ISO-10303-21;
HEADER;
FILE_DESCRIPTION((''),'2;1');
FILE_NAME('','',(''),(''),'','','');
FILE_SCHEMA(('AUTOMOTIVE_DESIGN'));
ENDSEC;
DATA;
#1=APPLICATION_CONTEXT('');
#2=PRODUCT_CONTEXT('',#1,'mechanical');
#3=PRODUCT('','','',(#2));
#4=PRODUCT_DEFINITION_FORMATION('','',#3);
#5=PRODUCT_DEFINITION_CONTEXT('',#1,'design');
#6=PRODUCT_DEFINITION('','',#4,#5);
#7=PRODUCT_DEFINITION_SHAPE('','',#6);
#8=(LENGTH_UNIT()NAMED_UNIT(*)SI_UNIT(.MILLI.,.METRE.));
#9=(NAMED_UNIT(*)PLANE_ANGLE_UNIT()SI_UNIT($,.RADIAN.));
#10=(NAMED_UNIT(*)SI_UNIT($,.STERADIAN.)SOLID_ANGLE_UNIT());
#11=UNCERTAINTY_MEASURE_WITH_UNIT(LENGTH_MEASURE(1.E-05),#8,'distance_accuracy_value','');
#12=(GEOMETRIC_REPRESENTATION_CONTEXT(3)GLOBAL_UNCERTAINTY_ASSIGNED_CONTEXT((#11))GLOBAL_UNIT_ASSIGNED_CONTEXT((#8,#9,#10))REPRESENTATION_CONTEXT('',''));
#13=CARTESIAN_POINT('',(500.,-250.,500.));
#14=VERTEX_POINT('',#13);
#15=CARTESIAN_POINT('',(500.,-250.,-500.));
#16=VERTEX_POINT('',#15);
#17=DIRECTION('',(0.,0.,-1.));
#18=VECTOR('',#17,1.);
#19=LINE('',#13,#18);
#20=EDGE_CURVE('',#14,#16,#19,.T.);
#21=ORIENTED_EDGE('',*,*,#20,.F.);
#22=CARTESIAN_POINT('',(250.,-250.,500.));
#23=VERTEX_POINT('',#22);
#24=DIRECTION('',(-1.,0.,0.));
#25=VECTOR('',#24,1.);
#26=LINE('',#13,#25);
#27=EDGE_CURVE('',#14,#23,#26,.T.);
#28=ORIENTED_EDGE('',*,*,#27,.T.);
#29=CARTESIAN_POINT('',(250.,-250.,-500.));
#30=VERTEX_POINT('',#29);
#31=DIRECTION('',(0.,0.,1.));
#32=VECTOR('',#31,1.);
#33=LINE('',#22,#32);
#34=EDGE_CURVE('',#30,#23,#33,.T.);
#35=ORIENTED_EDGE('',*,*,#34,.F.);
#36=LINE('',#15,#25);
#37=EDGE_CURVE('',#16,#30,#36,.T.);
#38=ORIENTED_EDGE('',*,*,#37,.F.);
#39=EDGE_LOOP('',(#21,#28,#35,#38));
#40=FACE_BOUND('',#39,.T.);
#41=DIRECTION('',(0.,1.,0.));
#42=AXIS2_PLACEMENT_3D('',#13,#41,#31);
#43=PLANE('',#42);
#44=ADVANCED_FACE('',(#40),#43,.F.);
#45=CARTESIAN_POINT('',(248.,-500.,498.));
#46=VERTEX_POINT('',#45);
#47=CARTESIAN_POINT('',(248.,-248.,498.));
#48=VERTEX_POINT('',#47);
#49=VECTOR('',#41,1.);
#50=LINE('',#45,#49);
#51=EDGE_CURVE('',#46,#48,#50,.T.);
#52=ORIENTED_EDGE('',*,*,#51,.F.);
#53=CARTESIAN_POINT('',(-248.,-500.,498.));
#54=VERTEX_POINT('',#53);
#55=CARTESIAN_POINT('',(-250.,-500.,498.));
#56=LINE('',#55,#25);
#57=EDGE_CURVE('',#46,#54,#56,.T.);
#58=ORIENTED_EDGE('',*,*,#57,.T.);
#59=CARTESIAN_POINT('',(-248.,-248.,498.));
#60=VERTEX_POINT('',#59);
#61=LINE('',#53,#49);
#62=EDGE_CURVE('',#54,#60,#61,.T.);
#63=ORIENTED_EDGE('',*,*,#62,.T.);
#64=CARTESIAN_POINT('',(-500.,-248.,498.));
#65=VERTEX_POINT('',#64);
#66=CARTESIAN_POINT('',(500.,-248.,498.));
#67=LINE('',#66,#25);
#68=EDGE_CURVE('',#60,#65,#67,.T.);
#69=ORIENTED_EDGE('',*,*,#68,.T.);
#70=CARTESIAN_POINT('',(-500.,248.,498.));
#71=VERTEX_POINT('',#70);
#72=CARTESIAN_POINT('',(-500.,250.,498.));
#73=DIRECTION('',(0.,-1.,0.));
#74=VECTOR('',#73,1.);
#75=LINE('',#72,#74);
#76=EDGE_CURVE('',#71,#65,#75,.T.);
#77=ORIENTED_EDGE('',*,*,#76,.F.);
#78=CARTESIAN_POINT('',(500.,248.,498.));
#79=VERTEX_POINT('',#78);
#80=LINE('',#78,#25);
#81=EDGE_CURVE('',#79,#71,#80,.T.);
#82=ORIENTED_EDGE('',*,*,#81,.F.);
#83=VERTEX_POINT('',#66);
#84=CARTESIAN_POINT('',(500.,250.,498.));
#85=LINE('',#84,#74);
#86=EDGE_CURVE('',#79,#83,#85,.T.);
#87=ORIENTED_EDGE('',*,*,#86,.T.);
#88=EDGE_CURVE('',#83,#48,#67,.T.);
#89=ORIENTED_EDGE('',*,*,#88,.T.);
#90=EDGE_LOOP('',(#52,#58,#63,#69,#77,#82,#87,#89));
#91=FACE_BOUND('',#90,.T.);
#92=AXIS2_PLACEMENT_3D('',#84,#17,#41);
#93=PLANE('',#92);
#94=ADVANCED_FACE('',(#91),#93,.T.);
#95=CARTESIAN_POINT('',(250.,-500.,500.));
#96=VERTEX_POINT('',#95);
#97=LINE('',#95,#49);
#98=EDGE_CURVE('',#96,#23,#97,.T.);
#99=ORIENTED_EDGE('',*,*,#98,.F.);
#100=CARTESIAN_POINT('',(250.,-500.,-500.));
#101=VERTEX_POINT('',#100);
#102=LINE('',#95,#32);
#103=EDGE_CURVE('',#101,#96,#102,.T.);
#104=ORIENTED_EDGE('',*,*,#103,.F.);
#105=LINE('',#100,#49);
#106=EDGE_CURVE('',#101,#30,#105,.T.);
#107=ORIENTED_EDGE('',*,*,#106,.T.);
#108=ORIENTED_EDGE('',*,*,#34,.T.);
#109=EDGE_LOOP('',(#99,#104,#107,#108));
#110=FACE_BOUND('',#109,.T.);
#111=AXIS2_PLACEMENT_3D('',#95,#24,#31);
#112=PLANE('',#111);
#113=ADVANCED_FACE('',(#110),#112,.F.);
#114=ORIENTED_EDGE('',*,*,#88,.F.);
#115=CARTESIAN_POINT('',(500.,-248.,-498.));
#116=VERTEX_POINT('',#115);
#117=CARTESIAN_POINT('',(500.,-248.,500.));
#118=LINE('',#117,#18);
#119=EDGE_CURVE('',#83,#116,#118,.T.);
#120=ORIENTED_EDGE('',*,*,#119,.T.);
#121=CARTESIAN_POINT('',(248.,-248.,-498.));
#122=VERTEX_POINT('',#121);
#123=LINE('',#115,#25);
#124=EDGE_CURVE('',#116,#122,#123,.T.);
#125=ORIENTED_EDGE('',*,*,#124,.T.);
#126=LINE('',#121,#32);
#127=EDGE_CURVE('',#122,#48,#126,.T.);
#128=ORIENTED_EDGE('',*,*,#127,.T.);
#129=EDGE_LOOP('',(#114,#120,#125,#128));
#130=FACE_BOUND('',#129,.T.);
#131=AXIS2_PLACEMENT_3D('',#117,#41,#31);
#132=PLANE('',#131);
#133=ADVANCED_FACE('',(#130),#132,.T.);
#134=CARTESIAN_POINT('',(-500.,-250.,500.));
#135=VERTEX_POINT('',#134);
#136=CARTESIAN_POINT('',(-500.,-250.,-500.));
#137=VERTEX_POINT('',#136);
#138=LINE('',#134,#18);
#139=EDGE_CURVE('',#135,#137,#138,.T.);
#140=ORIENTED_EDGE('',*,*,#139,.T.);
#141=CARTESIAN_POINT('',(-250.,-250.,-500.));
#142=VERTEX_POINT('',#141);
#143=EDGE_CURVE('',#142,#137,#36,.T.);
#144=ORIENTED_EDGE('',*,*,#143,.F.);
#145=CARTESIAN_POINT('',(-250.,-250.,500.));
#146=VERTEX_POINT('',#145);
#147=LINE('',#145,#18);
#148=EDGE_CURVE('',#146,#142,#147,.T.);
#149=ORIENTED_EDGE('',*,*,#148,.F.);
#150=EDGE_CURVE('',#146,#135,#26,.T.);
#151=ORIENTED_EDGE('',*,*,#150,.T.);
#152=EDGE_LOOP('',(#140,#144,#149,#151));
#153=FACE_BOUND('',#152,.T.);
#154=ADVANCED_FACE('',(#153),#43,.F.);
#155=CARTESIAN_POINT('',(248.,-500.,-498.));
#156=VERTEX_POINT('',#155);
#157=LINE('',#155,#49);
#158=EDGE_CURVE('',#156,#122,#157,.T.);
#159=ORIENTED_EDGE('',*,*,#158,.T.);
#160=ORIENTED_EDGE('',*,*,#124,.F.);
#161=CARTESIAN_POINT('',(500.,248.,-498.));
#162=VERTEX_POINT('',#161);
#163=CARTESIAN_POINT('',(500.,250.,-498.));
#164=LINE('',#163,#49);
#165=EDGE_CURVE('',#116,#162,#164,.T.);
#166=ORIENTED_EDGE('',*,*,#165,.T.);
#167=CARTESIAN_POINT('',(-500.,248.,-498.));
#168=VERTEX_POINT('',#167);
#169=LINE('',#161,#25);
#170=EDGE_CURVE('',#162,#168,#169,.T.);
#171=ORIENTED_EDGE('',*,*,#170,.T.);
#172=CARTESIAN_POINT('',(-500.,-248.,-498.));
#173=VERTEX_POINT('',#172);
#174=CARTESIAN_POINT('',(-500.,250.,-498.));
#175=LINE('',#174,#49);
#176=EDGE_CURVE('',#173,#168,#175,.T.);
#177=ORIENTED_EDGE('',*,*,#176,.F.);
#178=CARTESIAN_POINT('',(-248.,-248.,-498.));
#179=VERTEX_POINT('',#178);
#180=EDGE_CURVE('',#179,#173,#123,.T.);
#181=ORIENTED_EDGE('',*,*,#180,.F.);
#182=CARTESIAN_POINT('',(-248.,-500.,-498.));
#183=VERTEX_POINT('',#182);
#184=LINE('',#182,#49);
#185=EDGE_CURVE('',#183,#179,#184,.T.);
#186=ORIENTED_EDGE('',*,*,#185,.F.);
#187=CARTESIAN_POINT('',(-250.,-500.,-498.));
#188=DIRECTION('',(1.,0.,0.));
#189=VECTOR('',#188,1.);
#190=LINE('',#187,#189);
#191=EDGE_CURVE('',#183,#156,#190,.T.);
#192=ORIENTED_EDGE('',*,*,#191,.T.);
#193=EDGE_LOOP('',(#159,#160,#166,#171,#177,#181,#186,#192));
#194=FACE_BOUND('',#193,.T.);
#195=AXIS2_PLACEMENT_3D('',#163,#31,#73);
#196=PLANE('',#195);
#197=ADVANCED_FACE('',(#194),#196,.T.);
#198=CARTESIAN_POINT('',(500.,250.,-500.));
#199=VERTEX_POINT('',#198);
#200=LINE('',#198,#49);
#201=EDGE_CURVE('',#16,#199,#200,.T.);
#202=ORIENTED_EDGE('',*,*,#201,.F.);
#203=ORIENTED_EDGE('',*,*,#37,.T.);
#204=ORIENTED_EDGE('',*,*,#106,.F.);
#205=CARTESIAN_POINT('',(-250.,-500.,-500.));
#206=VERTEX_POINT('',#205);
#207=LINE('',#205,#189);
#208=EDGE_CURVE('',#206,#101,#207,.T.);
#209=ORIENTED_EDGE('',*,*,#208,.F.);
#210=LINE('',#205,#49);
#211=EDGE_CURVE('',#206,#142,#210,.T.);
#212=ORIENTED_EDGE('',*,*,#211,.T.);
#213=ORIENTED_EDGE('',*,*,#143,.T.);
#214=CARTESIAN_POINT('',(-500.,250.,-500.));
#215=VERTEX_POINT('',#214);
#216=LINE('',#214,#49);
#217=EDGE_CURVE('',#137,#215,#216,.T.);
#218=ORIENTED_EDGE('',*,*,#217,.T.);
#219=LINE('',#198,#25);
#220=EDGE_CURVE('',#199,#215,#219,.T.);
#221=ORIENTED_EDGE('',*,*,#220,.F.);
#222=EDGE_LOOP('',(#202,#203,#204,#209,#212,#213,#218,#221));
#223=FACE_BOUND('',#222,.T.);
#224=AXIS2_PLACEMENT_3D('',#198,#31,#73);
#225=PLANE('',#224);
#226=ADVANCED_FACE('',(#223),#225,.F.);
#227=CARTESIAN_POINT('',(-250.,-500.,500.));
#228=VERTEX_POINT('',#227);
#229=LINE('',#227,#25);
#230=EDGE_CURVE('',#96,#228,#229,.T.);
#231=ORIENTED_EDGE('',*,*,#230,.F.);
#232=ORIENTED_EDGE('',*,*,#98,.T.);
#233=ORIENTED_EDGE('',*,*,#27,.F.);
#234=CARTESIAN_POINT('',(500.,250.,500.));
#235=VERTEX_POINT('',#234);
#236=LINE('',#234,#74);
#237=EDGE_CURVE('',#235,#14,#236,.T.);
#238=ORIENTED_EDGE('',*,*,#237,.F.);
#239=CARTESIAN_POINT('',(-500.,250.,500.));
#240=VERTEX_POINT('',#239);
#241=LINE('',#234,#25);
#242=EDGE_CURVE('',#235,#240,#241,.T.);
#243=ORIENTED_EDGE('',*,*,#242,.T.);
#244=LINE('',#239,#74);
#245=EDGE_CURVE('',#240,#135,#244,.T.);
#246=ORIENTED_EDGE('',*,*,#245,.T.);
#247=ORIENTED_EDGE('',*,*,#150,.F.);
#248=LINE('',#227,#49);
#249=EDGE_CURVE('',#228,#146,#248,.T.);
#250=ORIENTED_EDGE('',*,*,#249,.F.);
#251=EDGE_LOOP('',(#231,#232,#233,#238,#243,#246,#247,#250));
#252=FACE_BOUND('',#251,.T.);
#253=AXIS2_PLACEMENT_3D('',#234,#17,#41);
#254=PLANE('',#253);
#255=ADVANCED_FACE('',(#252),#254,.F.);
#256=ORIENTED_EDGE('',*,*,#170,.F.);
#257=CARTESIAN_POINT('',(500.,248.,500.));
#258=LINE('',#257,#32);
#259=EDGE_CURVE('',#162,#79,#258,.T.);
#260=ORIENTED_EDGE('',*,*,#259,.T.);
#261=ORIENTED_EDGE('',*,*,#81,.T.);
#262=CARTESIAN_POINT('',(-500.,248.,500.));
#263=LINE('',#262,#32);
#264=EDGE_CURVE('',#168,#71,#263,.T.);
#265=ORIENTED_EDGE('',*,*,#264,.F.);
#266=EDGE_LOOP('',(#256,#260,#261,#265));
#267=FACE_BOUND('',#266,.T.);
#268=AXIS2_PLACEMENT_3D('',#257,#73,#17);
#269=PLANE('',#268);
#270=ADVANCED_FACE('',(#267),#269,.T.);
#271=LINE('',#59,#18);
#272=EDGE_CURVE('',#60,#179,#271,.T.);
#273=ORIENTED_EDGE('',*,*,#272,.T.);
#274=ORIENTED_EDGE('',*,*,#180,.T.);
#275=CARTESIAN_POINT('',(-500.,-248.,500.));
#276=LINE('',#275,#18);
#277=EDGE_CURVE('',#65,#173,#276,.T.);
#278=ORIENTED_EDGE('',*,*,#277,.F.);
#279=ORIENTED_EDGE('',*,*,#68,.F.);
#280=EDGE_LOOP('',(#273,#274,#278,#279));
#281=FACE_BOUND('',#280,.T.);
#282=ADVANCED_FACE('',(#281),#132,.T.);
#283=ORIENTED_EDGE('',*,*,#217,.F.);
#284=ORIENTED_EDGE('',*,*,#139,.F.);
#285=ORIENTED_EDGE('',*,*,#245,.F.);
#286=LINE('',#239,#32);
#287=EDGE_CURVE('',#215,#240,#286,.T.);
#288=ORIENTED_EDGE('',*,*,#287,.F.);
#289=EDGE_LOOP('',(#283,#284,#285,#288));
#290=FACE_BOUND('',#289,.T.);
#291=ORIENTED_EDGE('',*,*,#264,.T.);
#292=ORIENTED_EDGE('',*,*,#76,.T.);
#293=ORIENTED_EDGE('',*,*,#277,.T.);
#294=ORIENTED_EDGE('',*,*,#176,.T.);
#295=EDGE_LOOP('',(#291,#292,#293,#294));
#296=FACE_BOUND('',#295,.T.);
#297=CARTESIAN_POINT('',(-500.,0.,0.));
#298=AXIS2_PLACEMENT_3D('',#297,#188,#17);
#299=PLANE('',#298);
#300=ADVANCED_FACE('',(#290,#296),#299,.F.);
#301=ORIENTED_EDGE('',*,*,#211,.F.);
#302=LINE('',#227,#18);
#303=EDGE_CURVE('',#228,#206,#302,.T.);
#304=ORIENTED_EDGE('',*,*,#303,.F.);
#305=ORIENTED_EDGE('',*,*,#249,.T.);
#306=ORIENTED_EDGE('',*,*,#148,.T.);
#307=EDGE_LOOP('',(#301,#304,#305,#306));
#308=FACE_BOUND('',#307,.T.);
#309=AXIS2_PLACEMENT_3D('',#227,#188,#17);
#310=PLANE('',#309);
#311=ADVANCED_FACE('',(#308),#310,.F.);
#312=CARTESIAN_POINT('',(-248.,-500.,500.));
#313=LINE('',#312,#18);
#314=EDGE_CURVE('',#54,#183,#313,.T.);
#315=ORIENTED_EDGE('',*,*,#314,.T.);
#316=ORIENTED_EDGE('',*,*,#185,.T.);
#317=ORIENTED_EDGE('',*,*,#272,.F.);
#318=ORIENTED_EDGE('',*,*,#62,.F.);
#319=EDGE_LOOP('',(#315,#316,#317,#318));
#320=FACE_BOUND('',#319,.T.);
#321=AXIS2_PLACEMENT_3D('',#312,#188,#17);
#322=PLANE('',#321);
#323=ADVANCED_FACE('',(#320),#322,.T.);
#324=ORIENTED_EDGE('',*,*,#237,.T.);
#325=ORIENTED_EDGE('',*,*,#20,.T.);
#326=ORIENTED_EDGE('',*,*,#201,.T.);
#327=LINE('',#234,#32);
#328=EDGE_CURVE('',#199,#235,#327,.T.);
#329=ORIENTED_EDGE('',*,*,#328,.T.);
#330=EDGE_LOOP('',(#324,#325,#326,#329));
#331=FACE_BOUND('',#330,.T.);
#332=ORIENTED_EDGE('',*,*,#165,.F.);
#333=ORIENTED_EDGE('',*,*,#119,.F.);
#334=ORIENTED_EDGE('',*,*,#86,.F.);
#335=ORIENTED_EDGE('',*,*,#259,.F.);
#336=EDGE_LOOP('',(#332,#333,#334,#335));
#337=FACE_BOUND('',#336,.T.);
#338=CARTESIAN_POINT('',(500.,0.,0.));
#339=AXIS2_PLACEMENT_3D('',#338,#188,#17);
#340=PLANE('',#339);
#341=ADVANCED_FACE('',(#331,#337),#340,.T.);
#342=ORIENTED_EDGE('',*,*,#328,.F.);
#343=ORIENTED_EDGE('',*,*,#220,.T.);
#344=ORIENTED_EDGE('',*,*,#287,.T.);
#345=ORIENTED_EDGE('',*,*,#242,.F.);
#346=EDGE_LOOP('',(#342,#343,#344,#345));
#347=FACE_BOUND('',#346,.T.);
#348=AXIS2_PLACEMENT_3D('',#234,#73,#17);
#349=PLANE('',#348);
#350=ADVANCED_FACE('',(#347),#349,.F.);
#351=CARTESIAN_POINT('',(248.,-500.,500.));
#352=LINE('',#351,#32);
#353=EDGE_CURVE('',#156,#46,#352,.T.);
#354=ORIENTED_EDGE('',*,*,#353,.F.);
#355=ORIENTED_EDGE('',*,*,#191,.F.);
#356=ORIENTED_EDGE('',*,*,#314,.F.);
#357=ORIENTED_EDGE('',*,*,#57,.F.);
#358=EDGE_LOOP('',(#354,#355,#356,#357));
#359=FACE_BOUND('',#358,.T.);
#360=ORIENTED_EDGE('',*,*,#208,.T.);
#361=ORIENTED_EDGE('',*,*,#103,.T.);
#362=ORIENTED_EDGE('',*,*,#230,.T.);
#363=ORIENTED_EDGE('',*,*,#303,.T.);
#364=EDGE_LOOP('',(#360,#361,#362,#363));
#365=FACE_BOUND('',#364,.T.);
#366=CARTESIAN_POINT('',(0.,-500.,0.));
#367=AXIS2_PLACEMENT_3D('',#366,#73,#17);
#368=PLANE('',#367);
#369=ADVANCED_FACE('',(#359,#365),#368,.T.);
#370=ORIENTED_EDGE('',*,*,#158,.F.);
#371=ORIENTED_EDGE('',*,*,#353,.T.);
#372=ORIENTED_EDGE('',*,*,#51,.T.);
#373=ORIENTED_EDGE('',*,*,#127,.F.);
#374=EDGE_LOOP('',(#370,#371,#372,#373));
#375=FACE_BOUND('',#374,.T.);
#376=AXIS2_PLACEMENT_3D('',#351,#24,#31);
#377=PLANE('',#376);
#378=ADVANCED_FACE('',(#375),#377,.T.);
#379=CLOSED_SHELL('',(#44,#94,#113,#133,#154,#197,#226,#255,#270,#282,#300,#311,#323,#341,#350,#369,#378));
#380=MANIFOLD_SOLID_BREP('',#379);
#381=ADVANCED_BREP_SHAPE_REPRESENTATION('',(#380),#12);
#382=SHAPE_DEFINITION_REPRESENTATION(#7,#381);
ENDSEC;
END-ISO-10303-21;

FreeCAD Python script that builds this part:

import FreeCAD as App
import Part
import Sketcher

V = App.Vector


def add_polygon(sketch, points):
    """Adds a closed chain of lines whose ends are joined by coincident constraints."""
    first, n = sketch.GeometryCount, len(points)
    for a, b in zip(points, points[1:] + points[:1]):
        sketch.addGeometry(Part.LineSegment(App.Vector(*a, 0), App.Vector(*b, 0)), False)
    for i in range(n):
        sketch.addConstraint(Sketcher.Constraint("Coincident", first + i, 2, first + (i + 1) % n, 1))

doc = App.newDocument("Part")
params = doc.addObject("Spreadsheet::Sheet", "Params")
for row, (alias, value) in enumerate([
    ("sketch1_width", "500 mm"),
    ("sketch1_width2", "496 mm"),
    ("sketch1_height", "1000 mm"),
    ("sketch1_height2", "996 mm"),
    ("pad1_length", "1000 mm"),
    ("sketch2_width", "500 mm"),
    ("sketch2_width2", "496 mm"),
    ("sketch2_height", "1000 mm"),
    ("sketch2_height2", "996 mm"),
    ("pad2_length", "250 mm"),
    ("sketch3_width", "496 mm"),
    ("sketch3_height", "996 mm"),
    ("pocket1_length", "252 mm"),
], start=1):
    params.set(f"A{row}", alias)
    params.set(f"B{row}", "=" + value)
    params.setAlias(f"B{row}", alias)

body = doc.addObject("PartDesign::Body", "Body")

# Sketch on YZ plane
sketch1 = doc.addObject("Sketcher::SketchObject", "Sketch")
body.addObject(sketch1)
sketch1.AttachmentSupport = (doc.YZ_Plane, [""])
sketch1.MapMode = "FlatFace"
add_polygon(sketch1, [(250, 500), (-250, 500), (-250, -500), (250, -500)])  # lines 0-3
add_polygon(sketch1, [(-248, -498), (-248, 498), (248, 498), (248, -498)])  # lines 4-7
sketch1.addConstraint([
    Sketcher.Constraint("Horizontal", 0),
    Sketcher.Constraint("Vertical", 1),
    Sketcher.Constraint("Horizontal", 2),
    Sketcher.Constraint("Vertical", 3),
    Sketcher.Constraint("Vertical", 4),
    Sketcher.Constraint("Horizontal", 5),
    Sketcher.Constraint("Vertical", 6),
    Sketcher.Constraint("Horizontal", 7),
    Sketcher.Constraint("Symmetric", 0, 2, 2, 2, -1, 1),
    Sketcher.Constraint("Symmetric", 4, 2, 6, 2, -1, 1),
    Sketcher.Constraint("DistanceX", 0, 2, 0, 1, 500.0),
    Sketcher.Constraint("DistanceX", 5, 1, 5, 2, 496.0),
    Sketcher.Constraint("DistanceY", 1, 2, 1, 1, 1000.0),
    Sketcher.Constraint("DistanceY", 4, 1, 4, 2, 996.0),
])
sketch1.setExpression("Constraints[18]", "Params.sketch1_width")
sketch1.setExpression("Constraints[19]", "Params.sketch1_width2")
sketch1.setExpression("Constraints[20]", "Params.sketch1_height")
sketch1.setExpression("Constraints[21]", "Params.sketch1_height2")
pad1 = doc.addObject("PartDesign::Pad", "Pad")
body.addObject(pad1)
pad1.Profile = sketch1
pad1.setExpression("Length", "Params.pad1_length")
pad1.Midplane = True

# Sketch on XZ plane
sketch2 = doc.addObject("Sketcher::SketchObject", "Sketch001")
body.addObject(sketch2)
sketch2.AttachmentSupport = (doc.XZ_Plane, [""])
sketch2.MapMode = "FlatFace"
sketch2.AttachmentOffset = App.Placement(V(0, 0, 250), App.Rotation())
add_polygon(sketch2, [(-250, 500), (-250, -500), (250, -500), (250, 500)])  # lines 0-3
add_polygon(sketch2, [(248, -498), (-248, -498), (-248, 498), (248, 498)])  # lines 4-7
sketch2.addConstraint([
    Sketcher.Constraint("Vertical", 0),
    Sketcher.Constraint("Horizontal", 1),
    Sketcher.Constraint("Vertical", 2),
    Sketcher.Constraint("Horizontal", 3),
    Sketcher.Constraint("Horizontal", 4),
    Sketcher.Constraint("Vertical", 5),
    Sketcher.Constraint("Horizontal", 6),
    Sketcher.Constraint("Vertical", 7),
    Sketcher.Constraint("Symmetric", 0, 2, 2, 2, -1, 1),
    Sketcher.Constraint("Symmetric", 4, 2, 6, 2, -1, 1),
    Sketcher.Constraint("DistanceX", 1, 1, 1, 2, 500.0),
    Sketcher.Constraint("DistanceX", 4, 2, 4, 1, 496.0),
    Sketcher.Constraint("DistanceY", 0, 2, 0, 1, 1000.0),
    Sketcher.Constraint("DistanceY", 5, 1, 5, 2, 996.0),
])
sketch2.setExpression("Constraints[18]", "Params.sketch2_width")
sketch2.setExpression("Constraints[19]", "Params.sketch2_width2")
sketch2.setExpression("Constraints[20]", "Params.sketch2_height")
sketch2.setExpression("Constraints[21]", "Params.sketch2_height2")
pad2 = doc.addObject("PartDesign::Pad", "Pad001")
body.addObject(pad2)
pad2.Profile = sketch2
pad2.setExpression("Length", "Params.pad2_length")

# Sketch on XZ plane
sketch3 = doc.addObject("Sketcher::SketchObject", "Sketch002")
body.addObject(sketch3)
sketch3.AttachmentSupport = (doc.XZ_Plane, [""])
sketch3.MapMode = "FlatFace"
sketch3.AttachmentOffset = App.Placement(V(0, 0, 500), App.Rotation())
add_polygon(sketch3, [(-248, 498), (-248, -498), (248, -498), (248, 498)])  # lines 0-3
sketch3.addConstraint([
    Sketcher.Constraint("Vertical", 0),
    Sketcher.Constraint("Horizontal", 1),
    Sketcher.Constraint("Vertical", 2),
    Sketcher.Constraint("Horizontal", 3),
    Sketcher.Constraint("Symmetric", 0, 2, 2, 2, -1, 1),
    Sketcher.Constraint("DistanceX", 1, 1, 1, 2, 496.0),
    Sketcher.Constraint("DistanceY", 0, 2, 0, 1, 996.0),
])
sketch3.setExpression("Constraints[9]", "Params.sketch3_width")
sketch3.setExpression("Constraints[10]", "Params.sketch3_height")
pocket1 = doc.addObject("PartDesign::Pocket", "Pocket")
body.addObject(pocket1)
pocket1.Profile = sketch3
pocket1.setExpression("Length", "Params.pocket1_length")

doc.recompute()
